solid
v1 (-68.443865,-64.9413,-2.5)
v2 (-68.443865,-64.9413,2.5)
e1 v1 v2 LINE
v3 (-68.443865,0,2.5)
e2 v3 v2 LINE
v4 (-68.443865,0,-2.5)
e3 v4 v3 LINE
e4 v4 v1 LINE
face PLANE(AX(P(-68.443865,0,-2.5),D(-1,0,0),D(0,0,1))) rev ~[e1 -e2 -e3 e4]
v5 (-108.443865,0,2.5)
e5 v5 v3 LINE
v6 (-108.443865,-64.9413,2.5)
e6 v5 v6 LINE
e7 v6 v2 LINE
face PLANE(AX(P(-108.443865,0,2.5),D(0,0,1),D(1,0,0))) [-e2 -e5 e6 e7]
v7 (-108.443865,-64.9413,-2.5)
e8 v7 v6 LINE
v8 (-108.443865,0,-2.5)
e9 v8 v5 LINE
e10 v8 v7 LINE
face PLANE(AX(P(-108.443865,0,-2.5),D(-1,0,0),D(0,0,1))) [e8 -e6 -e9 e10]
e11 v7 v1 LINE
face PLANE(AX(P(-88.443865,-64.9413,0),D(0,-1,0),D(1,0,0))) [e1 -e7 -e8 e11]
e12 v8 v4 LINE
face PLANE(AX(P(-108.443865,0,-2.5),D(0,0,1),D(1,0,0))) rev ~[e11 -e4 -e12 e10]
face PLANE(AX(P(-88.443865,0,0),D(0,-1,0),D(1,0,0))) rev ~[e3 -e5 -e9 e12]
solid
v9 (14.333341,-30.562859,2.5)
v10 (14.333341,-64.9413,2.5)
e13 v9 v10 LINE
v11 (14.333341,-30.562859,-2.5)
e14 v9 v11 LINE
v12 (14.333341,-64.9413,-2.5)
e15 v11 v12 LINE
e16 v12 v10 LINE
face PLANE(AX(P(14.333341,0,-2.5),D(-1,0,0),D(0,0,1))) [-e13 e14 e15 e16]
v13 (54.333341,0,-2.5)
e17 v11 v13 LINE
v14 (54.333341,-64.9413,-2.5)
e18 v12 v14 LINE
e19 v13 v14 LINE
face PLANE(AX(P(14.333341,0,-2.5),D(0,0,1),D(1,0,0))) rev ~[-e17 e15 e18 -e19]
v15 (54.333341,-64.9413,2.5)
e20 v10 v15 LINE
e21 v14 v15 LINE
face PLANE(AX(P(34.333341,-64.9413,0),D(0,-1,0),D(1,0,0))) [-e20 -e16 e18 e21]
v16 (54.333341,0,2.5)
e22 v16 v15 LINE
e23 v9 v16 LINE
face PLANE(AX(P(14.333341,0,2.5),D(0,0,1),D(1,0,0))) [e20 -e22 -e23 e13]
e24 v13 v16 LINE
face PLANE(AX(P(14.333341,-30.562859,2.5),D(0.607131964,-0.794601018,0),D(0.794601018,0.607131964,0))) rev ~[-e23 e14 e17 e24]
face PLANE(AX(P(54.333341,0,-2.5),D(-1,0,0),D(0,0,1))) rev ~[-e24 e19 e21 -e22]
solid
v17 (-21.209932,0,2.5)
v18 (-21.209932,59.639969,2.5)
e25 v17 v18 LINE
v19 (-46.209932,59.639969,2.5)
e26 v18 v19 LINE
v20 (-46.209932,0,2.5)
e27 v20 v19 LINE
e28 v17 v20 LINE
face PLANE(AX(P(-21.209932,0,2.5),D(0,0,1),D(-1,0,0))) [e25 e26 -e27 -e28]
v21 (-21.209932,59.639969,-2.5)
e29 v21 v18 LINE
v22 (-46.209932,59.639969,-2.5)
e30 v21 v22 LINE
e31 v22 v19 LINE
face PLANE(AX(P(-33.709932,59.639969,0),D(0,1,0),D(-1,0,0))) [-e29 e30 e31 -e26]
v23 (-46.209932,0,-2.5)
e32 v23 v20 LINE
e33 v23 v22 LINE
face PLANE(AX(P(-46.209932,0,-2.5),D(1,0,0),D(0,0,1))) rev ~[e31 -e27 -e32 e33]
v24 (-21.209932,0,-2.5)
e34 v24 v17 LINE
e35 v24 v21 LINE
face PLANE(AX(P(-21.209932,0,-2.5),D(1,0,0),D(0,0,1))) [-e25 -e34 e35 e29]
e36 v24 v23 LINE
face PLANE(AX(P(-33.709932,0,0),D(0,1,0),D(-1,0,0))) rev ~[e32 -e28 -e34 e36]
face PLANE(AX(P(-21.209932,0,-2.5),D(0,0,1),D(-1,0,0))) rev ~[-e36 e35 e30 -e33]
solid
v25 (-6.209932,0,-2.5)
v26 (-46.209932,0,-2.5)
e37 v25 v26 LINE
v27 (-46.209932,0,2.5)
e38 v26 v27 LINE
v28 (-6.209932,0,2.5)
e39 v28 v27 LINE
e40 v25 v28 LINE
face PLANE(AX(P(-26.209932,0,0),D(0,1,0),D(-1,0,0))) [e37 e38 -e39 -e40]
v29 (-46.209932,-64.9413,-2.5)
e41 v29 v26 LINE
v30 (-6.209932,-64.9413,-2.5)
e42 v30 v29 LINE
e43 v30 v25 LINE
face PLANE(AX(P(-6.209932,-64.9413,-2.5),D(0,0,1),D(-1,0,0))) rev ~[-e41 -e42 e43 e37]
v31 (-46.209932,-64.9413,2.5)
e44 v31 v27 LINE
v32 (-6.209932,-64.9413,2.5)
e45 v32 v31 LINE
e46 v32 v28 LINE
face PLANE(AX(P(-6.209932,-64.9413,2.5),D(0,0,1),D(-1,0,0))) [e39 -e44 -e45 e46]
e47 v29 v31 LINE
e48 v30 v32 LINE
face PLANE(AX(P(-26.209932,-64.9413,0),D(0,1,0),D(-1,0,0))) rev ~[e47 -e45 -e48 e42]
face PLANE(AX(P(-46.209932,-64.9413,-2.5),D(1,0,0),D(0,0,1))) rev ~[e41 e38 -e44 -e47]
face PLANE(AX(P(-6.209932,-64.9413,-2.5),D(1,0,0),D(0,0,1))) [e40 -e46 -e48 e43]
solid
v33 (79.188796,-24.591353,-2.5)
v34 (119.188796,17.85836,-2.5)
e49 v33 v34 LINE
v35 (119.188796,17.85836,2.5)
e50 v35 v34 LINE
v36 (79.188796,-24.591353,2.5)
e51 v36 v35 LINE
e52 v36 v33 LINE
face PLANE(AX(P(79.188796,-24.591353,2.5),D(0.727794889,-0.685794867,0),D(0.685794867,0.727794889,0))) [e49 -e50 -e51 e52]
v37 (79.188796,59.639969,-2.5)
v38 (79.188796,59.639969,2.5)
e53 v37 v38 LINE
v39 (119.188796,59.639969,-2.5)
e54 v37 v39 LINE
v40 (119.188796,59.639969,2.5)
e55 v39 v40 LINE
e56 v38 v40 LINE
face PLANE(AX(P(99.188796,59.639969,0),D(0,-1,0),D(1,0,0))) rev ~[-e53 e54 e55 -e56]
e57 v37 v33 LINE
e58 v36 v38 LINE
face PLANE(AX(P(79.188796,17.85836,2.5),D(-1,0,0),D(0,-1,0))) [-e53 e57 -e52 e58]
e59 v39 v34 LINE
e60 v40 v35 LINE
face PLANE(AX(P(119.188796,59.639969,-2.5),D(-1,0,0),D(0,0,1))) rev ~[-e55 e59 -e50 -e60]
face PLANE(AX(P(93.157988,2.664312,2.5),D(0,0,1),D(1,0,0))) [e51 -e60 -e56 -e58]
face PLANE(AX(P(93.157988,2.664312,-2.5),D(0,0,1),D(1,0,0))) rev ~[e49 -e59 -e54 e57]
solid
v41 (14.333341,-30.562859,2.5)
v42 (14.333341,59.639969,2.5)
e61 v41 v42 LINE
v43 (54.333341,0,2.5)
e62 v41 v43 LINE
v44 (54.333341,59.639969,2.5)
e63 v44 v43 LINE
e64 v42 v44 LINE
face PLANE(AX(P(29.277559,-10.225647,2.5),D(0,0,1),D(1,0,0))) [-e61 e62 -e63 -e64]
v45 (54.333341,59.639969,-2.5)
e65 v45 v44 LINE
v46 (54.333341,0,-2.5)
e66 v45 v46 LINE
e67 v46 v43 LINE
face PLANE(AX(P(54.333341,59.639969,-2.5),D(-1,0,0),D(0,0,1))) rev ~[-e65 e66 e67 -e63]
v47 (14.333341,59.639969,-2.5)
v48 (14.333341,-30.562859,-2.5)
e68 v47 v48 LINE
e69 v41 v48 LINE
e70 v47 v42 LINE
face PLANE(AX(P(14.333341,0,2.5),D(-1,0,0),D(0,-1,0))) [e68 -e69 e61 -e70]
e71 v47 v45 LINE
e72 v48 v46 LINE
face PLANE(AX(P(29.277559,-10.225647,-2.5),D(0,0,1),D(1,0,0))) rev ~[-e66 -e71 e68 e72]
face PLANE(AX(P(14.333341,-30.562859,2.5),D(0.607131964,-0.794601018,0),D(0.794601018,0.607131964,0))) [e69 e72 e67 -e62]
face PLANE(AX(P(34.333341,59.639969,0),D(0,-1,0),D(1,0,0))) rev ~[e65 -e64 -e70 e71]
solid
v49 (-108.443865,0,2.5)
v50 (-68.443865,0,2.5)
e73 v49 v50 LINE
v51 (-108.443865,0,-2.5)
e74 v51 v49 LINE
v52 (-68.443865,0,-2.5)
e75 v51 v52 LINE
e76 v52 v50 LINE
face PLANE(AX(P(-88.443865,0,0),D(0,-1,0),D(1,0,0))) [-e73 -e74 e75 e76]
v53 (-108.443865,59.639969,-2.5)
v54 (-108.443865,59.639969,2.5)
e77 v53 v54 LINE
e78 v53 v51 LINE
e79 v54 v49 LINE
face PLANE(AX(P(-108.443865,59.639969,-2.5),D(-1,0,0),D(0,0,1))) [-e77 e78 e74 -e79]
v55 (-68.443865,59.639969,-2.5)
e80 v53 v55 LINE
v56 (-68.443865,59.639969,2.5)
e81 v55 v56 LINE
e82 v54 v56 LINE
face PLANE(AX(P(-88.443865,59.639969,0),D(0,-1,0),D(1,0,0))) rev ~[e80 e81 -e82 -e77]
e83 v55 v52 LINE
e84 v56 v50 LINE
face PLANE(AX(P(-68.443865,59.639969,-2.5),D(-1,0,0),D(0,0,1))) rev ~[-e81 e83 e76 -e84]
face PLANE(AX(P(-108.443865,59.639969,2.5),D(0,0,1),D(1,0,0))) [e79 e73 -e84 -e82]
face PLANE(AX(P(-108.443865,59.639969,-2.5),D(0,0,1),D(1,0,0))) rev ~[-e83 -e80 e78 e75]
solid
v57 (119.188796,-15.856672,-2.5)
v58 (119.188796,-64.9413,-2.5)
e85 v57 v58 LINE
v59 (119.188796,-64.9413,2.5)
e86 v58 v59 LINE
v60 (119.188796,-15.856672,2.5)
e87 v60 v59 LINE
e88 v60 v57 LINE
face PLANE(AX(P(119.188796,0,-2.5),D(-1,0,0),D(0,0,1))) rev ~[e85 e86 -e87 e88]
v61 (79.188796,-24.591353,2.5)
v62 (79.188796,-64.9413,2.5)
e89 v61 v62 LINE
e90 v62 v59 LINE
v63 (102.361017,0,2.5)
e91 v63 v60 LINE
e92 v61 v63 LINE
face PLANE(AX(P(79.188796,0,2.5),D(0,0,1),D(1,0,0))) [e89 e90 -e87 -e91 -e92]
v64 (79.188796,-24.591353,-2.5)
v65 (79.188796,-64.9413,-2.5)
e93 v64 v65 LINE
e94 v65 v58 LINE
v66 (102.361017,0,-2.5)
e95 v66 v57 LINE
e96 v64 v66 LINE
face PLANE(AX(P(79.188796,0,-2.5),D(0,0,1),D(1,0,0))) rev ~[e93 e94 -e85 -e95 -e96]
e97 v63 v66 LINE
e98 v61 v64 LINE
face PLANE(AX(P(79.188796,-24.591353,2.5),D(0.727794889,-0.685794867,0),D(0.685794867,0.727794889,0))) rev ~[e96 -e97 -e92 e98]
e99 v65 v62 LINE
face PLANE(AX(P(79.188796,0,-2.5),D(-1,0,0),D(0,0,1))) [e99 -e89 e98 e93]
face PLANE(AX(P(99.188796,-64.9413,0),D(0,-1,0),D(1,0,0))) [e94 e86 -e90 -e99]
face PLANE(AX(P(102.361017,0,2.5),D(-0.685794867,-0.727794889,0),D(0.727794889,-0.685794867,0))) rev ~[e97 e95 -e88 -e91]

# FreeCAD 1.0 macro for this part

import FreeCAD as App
import Part
import Sketcher
from FreeCAD import Vector
Q = App.Units.Quantity

doc = App.newDocument("Part")
body = doc.addObject("PartDesign::Body", "Body")

# Sketch on XZ plane
sketch1 = body.newObject("Sketcher::SketchObject", "Sketch")
sketch1.AttachmentSupport = (doc.getObject("XZ_Plane"), [""])
sketch1.MapMode = "FlatFace"
sketch1.AttachmentOffset = App.Placement(Vector(0, 0, -59.639969), App.Rotation())
sketch1.addGeometry([
    Part.LineSegment(Vector(-108, 2, 0), Vector(-108, -2, 0)),
    Part.LineSegment(Vector(-108, -2, 0), Vector(-68, -2, 0)),
    Part.LineSegment(Vector(-68, -2, 0), Vector(-68, 2, 0)),
    Part.LineSegment(Vector(-68, 2, 0), Vector(-108, 2, 0)),
], False)
sketch1.addConstraint([
    Sketcher.Constraint("Coincident", 0, 2, 1, 1),
    Sketcher.Constraint("Coincident", 1, 2, 2, 1),
    Sketcher.Constraint("Coincident", 2, 2, 3, 1),
    Sketcher.Constraint("Coincident", 3, 2, 0, 1),
    Sketcher.Constraint("Vertical", 0),
    Sketcher.Constraint("Horizontal", 1),
    Sketcher.Constraint("Vertical", 2),
    Sketcher.Constraint("Horizontal", 3),
    Sketcher.Constraint("DistanceX", 1, 1, 1, 2, Q("40 mm")),
    Sketcher.Constraint("DistanceY", 0, 2, 0, 1, Q("5 mm")),
    Sketcher.Constraint("DistanceY", 0, 2, -1, 1, Q("2.5 mm")),
    Sketcher.Constraint("DistanceX", 0, 2, -1, 1, Q("108.443865 mm")),
])
pad1 = body.newObject("PartDesign::Pad", "Pad")
pad1.Profile = sketch1
pad1.Length = 59.639969
body2 = doc.addObject("PartDesign::Body", "Body001")

# Sketch on XZ plane
sketch2 = body2.newObject("Sketcher::SketchObject", "Sketch001")
sketch2.AttachmentSupport = (doc.getObject("XZ_Plane001"), [""])
sketch2.MapMode = "FlatFace"
sketch2.addGeometry([
    Part.LineSegment(Vector(-108, 2, 0), Vector(-108, -2, 0)),
    Part.LineSegment(Vector(-108, -2, 0), Vector(-68, -2, 0)),
    Part.LineSegment(Vector(-68, -2, 0), Vector(-68, 2, 0)),
    Part.LineSegment(Vector(-68, 2, 0), Vector(-108, 2, 0)),
], False)
sketch2.addConstraint([
    Sketcher.Constraint("Coincident", 0, 2, 1, 1),
    Sketcher.Constraint("Coincident", 1, 2, 2, 1),
    Sketcher.Constraint("Coincident", 2, 2, 3, 1),
    Sketcher.Constraint("Coincident", 3, 2, 0, 1),
    Sketcher.Constraint("Vertical", 0),
    Sketcher.Constraint("Horizontal", 1),
    Sketcher.Constraint("Vertical", 2),
    Sketcher.Constraint("Horizontal", 3),
    Sketcher.Constraint("DistanceX", 1, 1, 1, 2, Q("40 mm")),
    Sketcher.Constraint("DistanceY", 0, 2, 0, 1, Q("5 mm")),
    Sketcher.Constraint("DistanceY", 0, 2, -1, 1, Q("2.5 mm")),
    Sketcher.Constraint("DistanceX", 0, 2, -1, 1, Q("108.443865 mm")),
])
pad2 = body2.newObject("PartDesign::Pad", "Pad001")
pad2.Profile = sketch2
pad2.Length = 64.9413
body3 = doc.addObject("PartDesign::Body", "Body002")

# Sketch on XZ plane
sketch3 = body3.newObject("Sketcher::SketchObject", "Sketch002")
sketch3.AttachmentSupport = (doc.getObject("XZ_Plane002"), [""])
sketch3.MapMode = "FlatFace"
sketch3.AttachmentOffset = App.Placement(Vector(0, 0, 64.9413), App.Rotation())
sketch3.addGeometry([
    Part.LineSegment(Vector(-6, 2, 0), Vector(-6, -2, 0)),
    Part.LineSegment(Vector(-6, -2, 0), Vector(-46, -2, 0)),
    Part.LineSegment(Vector(-46, -2, 0), Vector(-46, 2, 0)),
    Part.LineSegment(Vector(-46, 2, 0), Vector(-6, 2, 0)),
], False)
sketch3.addConstraint([
    Sketcher.Constraint("Coincident", 0, 2, 1, 1),
    Sketcher.Constraint("Coincident", 1, 2, 2, 1),
    Sketcher.Constraint("Coincident", 2, 2, 3, 1),
    Sketcher.Constraint("Coincident", 3, 2, 0, 1),
    Sketcher.Constraint("Vertical", 0),
    Sketcher.Constraint("Horizontal", 1),
    Sketcher.Constraint("Vertical", 2),
    Sketcher.Constraint("Horizontal", 3),
    Sketcher.Constraint("DistanceX", 1, 2, 1, 1, Q("40 mm")),
    Sketcher.Constraint("DistanceY", 0, 2, 0, 1, Q("5 mm")),
    Sketcher.Constraint("DistanceY", 0, 2, -1, 1, Q("2.5 mm")),
    Sketcher.Constraint("DistanceX", 0, 2, -1, 1, Q("6.209932 mm")),
])
pad3 = body3.newObject("PartDesign::Pad", "Pad002")
pad3.Profile = sketch3
pad3.Length = 64.9413
pad3.Reversed = True
body4 = doc.addObject("PartDesign::Body", "Body003")

# Sketch on XZ plane
sketch4 = body4.newObject("Sketcher::SketchObject", "Sketch003")
sketch4.AttachmentSupport = (doc.getObject("XZ_Plane003"), [""])
sketch4.MapMode = "FlatFace"
sketch4.addGeometry([
    Part.LineSegment(Vector(-21, 2, 0), Vector(-21, -2, 0)),
    Part.LineSegment(Vector(-21, -2, 0), Vector(-46, -2, 0)),
    Part.LineSegment(Vector(-46, -2, 0), Vector(-46, 2, 0)),
    Part.LineSegment(Vector(-46, 2, 0), Vector(-21, 2, 0)),
], False)
sketch4.addConstraint([
    Sketcher.Constraint("Coincident", 0, 2, 1, 1),
    Sketcher.Constraint("Coincident", 1, 2, 2, 1),
    Sketcher.Constraint("Coincident", 2, 2, 3, 1),
    Sketcher.Constraint("Coincident", 3, 2, 0, 1),
    Sketcher.Constraint("Vertical", 0),
    Sketcher.Constraint("Horizontal", 1),
    Sketcher.Constraint("Vertical", 2),
    Sketcher.Constraint("Horizontal", 3),
    Sketcher.Constraint("DistanceX", 1, 2, 1, 1, Q("25 mm")),
    Sketcher.Constraint("DistanceY", 0, 2, 0, 1, Q("5 mm")),
    Sketcher.Constraint("DistanceY", 0, 2, -1, 1, Q("2.5 mm")),
    Sketcher.Constraint("DistanceX", 0, 2, -1, 1, Q("21.209932 mm")),
])
pad4 = body4.newObject("PartDesign::Pad", "Pad003")
pad4.Profile = sketch4
pad4.Length = 59.639969
pad4.Reversed = True
body5 = doc.addObject("PartDesign::Body", "Body004")

# Sketch on XZ plane
sketch5 = body5.newObject("Sketcher::SketchObject", "Sketch004")
sketch5.AttachmentSupport = (doc.getObject("XZ_Plane004"), [""])
sketch5.MapMode = "FlatFace"
sketch5.AttachmentOffset = App.Placement(Vector(0, 0, -59.639969), App.Rotation())
sketch5.addGeometry([
    Part.LineSegment(Vector(14, 2, 0), Vector(14, -2, 0)),
    Part.LineSegment(Vector(14, -2, 0), Vector(54, -2, 0)),
    Part.LineSegment(Vector(54, -2, 0), Vector(54, 2, 0)),
    Part.LineSegment(Vector(54, 2, 0), Vector(14, 2, 0)),
], False)
sketch5.addConstraint([
    Sketcher.Constraint("Coincident", 0, 2, 1, 1),
    Sketcher.Constraint("Coincident", 1, 2, 2, 1),
    Sketcher.Constraint("Coincident", 2, 2, 3, 1),
    Sketcher.Constraint("Coincident", 3, 2, 0, 1),
    Sketcher.Constraint("Vertical", 0),
    Sketcher.Constraint("Horizontal", 1),
    Sketcher.Constraint("Vertical", 2),
    Sketcher.Constraint("Horizontal", 3),
    Sketcher.Constraint("DistanceX", 1, 1, 1, 2, Q("40 mm")),
    Sketcher.Constraint("DistanceY", 0, 2, 0, 1, Q("5 mm")),
    Sketcher.Constraint("DistanceY", 0, 2, -1, 1, Q("2.5 mm")),
    Sketcher.Constraint("DistanceX", -1, 1, 0, 2, Q("14.333341 mm")),
])
pad5 = body5.newObject("PartDesign::Pad", "Pad004")
pad5.Profile = sketch5
pad5.Length = 59.639969

# Sketch on XY plane
sketch6 = body5.newObject("Sketcher::SketchObject", "Sketch005")
sketch6.AttachmentSupport = (doc.getObject("XY_Plane004"), [""])
sketch6.MapMode = "FlatFace"
sketch6.AttachmentOffset = App.Placement(Vector(0, 0, 2.5), App.Rotation())
sketch6.addGeometry([
    Part.LineSegment(Vector(14, 0, 0), Vector(14, -31, 0)),
    Part.LineSegment(Vector(14, -31, 0), Vector(54, 0, 0)),
    Part.LineSegment(Vector(54, 0, 0), Vector(14, 0, 0)),
], False)
sketch6.addConstraint([
    Sketcher.Constraint("Coincident", 0, 2, 1, 1),
    Sketcher.Constraint("Coincident", 1, 2, 2, 1),
    Sketcher.Constraint("Coincident", 2, 2, 0, 1),
    Sketcher.Constraint("Vertical", 0),
    Sketcher.Constraint("Horizontal", 2),
    Sketcher.Constraint("PointOnObject", 1, 2, -1),
    Sketcher.Constraint("DistanceX", 2, 2, 2, 1, Q("40 mm")),
    Sketcher.Constraint("DistanceY", 0, 2, 0, 1, Q("30.562859 mm")),
    Sketcher.Constraint("DistanceX", -1, 1, 0, 2, Q("14.333341 mm")),
])
pad6 = body5.newObject("PartDesign::Pad", "Pad005")
pad6.Profile = sketch6
pad6.Length = 5
pad6.Reversed = True
body6 = doc.addObject("PartDesign::Body", "Body005")

# Sketch on XZ plane
sketch7 = body6.newObject("Sketcher::SketchObject", "Sketch006")
sketch7.AttachmentSupport = (doc.getObject("XZ_Plane005"), [""])
sketch7.MapMode = "FlatFace"
sketch7.addGeometry([
    Part.LineSegment(Vector(14, 2, 0), Vector(14, -2, 0)),
    Part.LineSegment(Vector(14, -2, 0), Vector(54, -2, 0)),
    Part.LineSegment(Vector(54, -2, 0), Vector(54, 2, 0)),
    Part.LineSegment(Vector(54, 2, 0), Vector(14, 2, 0)),
], False)
sketch7.addConstraint([
    Sketcher.Constraint("Coincident", 0, 2, 1, 1),
    Sketcher.Constraint("Coincident", 1, 2, 2, 1),
    Sketcher.Constraint("Coincident", 2, 2, 3, 1),
    Sketcher.Constraint("Coincident", 3, 2, 0, 1),
    Sketcher.Constraint("Vertical", 0),
    Sketcher.Constraint("Horizontal", 1),
    Sketcher.Constraint("Vertical", 2),
    Sketcher.Constraint("Horizontal", 3),
    Sketcher.Constraint("DistanceX", 1, 1, 1, 2, Q("40 mm")),
    Sketcher.Constraint("DistanceY", 0, 2, 0, 1, Q("5 mm")),
    Sketcher.Constraint("DistanceY", 0, 2, -1, 1, Q("2.5 mm")),
    Sketcher.Constraint("DistanceX", -1, 1, 0, 2, Q("14.333341 mm")),
])
pad7 = body6.newObject("PartDesign::Pad", "Pad006")
pad7.Profile = sketch7
pad7.Length = 64.9413

# Sketch on XY plane
sketch8 = body6.newObject("Sketcher::SketchObject", "Sketch007")
sketch8.AttachmentSupport = (doc.getObject("XY_Plane005"), [""])
sketch8.MapMode = "FlatFace"
sketch8.AttachmentOffset = App.Placement(Vector(0, 0, 2.5), App.Rotation())
sketch8.addGeometry([
    Part.LineSegment(Vector(14, 0, 0), Vector(14, -31, 0)),
    Part.LineSegment(Vector(14, -31, 0), Vector(54, 0, 0)),
    Part.LineSegment(Vector(54, 0, 0), Vector(14, 0, 0)),
], False)
sketch8.addConstraint([
    Sketcher.Constraint("Coincident", 0, 2, 1, 1),
    Sketcher.Constraint("Coincident", 1, 2, 2, 1),
    Sketcher.Constraint("Coincident", 2, 2, 0, 1),
    Sketcher.Constraint("Vertical", 0),
    Sketcher.Constraint("Horizontal", 2),
    Sketcher.Constraint("PointOnObject", 1, 2, -1),
    Sketcher.Constraint("DistanceX", 2, 2, 2, 1, Q("40 mm")),
    Sketcher.Constraint("DistanceY", 0, 2, 0, 1, Q("30.562859 mm")),
    Sketcher.Constraint("DistanceX", -1, 1, 0, 2, Q("14.333341 mm")),
])
pocket1 = body6.newObject("PartDesign::Pocket", "Pocket")
pocket1.Profile = sketch8
pocket1.Type = "ThroughAll"
body7 = doc.addObject("PartDesign::Body", "Body006")

# Sketch on XZ plane
sketch9 = body7.newObject("Sketcher::SketchObject", "Sketch008")
sketch9.AttachmentSupport = (doc.getObject("XZ_Plane006"), [""])
sketch9.MapMode = "FlatFace"
sketch9.AttachmentOffset = App.Placement(Vector(0, 0, -59.639969), App.Rotation())
sketch9.addGeometry([
    Part.LineSegment(Vector(79, 2, 0), Vector(79, -2, 0)),
    Part.LineSegment(Vector(79, -2, 0), Vector(119, -2, 0)),
    Part.LineSegment(Vector(119, -2, 0), Vector(119, 2, 0)),
    Part.LineSegment(Vector(119, 2, 0), Vector(79, 2, 0)),
], False)
sketch9.addConstraint([
    Sketcher.Constraint("Coincident", 0, 2, 1, 1),
    Sketcher.Constraint("Coincident", 1, 2, 2, 1),
    Sketcher.Constraint("Coincident", 2, 2, 3, 1),
    Sketcher.Constraint("Coincident", 3, 2, 0, 1),
    Sketcher.Constraint("Vertical", 0),
    Sketcher.Constraint("Horizontal", 1),
    Sketcher.Constraint("Vertical", 2),
    Sketcher.Constraint("Horizontal", 3),
    Sketcher.Constraint("DistanceX", 1, 1, 1, 2, Q("40 mm")),
    Sketcher.Constraint("DistanceY", 0, 2, 0, 1, Q("5 mm")),
    Sketcher.Constraint("DistanceY", 0, 2, -1, 1, Q("2.5 mm")),
    Sketcher.Constraint("DistanceX", -1, 1, 0, 2, Q("79.188796 mm")),
])
pad8 = body7.newObject("PartDesign::Pad", "Pad007")
pad8.Profile = sketch9
pad8.Length = 59.639969
body8 = doc.addObject("PartDesign::Body", "Body007")

# Sketch on XZ plane
sketch10 = body8.newObject("Sketcher::SketchObject", "Sketch009")
sketch10.AttachmentSupport = (doc.getObject("XZ_Plane007"), [""])
sketch10.MapMode = "FlatFace"
sketch10.addGeometry([
    Part.LineSegment(Vector(79, 2, 0), Vector(79, -2, 0)),
    Part.LineSegment(Vector(79, -2, 0), Vector(119, -2, 0)),
    Part.LineSegment(Vector(119, -2, 0), Vector(119, 2, 0)),
    Part.LineSegment(Vector(119, 2, 0), Vector(79, 2, 0)),
], False)
sketch10.addConstraint([
    Sketcher.Constraint("Coincident", 0, 2, 1, 1),
    Sketcher.Constraint("Coincident", 1, 2, 2, 1),
    Sketcher.Constraint("Coincident", 2, 2, 3, 1),
    Sketcher.Constraint("Coincident", 3, 2, 0, 1),
    Sketcher.Constraint("Vertical", 0),
    Sketcher.Constraint("Horizontal", 1),
    Sketcher.Constraint("Vertical", 2),
    Sketcher.Constraint("Horizontal", 3),
    Sketcher.Constraint("DistanceX", 1, 1, 1, 2, Q("40 mm")),
    Sketcher.Constraint("DistanceY", 0, 2, 0, 1, Q("5 mm")),
    Sketcher.Constraint("DistanceY", 0, 2, -1, 1, Q("2.5 mm")),
    Sketcher.Constraint("DistanceX", -1, 1, 0, 2, Q("79.188796 mm")),
])
pad9 = body8.newObject("PartDesign::Pad", "Pad008")
pad9.Profile = sketch10
pad9.Length = 64.9413
body9 = doc.addObject("PartDesign::Body", "Body008")

# Sketch on XY plane
sketch11 = body9.newObject("Sketcher::SketchObject", "Sketch010")
sketch11.AttachmentSupport = (doc.getObject("XY_Plane008"), [""])
sketch11.MapMode = "FlatFace"
sketch11.AttachmentOffset = App.Placement(Vector(0, 0, 2.5), App.Rotation())
sketch11.addGeometry([
    Part.LineSegment(Vector(79, 18, 0), Vector(79, -25, 0)),  # 0
    Part.LineSegment(Vector(79, -25, 0), Vector(102, 0, 0)),  # 1
    Part.LineSegment(Vector(102, 0, 0), Vector(119, -16, 0)),  # 2
    Part.LineSegment(Vector(119, -16, 0), Vector(119, 18, 0)),  # 3
    Part.LineSegment(Vector(119, 18, 0), Vector(79, 18, 0)),  # 4
], False)
sketch11.addConstraint([
    Sketcher.Constraint("Coincident", 0, 2, 1, 1),
    Sketcher.Constraint("Coincident", 1, 2, 2, 1),
    Sketcher.Constraint("Coincident", 2, 2, 3, 1),
    Sketcher.Constraint("Coincident", 3, 2, 4, 1),
    Sketcher.Constraint("Coincident", 4, 2, 0, 1),
    Sketcher.Constraint("Vertical", 0),
    Sketcher.Constraint("Vertical", 3),
    Sketcher.Constraint("Horizontal", 4),
    Sketcher.Constraint("PointOnObject", 1, 2, -1),
    Sketcher.Constraint("Perpendicular", 1, 2),
    Sketcher.Constraint("DistanceX", 4, 2, 4, 1, Q("40 mm")),
    Sketcher.Constraint("Distance", 1, Q("33.788851 mm")),
    Sketcher.Constraint("DistanceY", 0, 2, 0, 1, Q("42.449713 mm")),
    Sketcher.Constraint("DistanceY", 3, 1, 3, 2, Q("33.715032 mm")),
    Sketcher.Constraint("DistanceX", -1, 1, 0, 2, Q("79.188796 mm")),
])
pad10 = body9.newObject("PartDesign::Pad", "Pad009")
pad10.Profile = sketch11
pad10.Length = 6
pad10.Reversed = True
doc.recompute()

body10 = doc.addObject("PartDesign::Body", "Body009")
body10.BaseFeature = body9
boolean = body7.newObject("PartDesign::Boolean", "Boolean")
boolean.Type = "Cut"
boolean.addObjects([body10])
doc.recompute()

# Sketch on XY plane
sketch12 = body7.newObject("Sketcher::SketchObject", "Sketch011")
sketch12.AttachmentSupport = (doc.getObject("XY_Plane006"), [""])
sketch12.MapMode = "FlatFace"
sketch12.AttachmentOffset = App.Placement(Vector(0, 0, 2.5), App.Rotation())
sketch12.addGeometry([
    Part.LineSegment(Vector(79, 18, 0), Vector(79, -25, 0)),
    Part.LineSegment(Vector(79, -25, 0), Vector(119, 18, 0)),
    Part.LineSegment(Vector(119, 18, 0), Vector(79, 18, 0)),
], False)
sketch12.addConstraint([
    Sketcher.Constraint("Coincident", 0, 2, 1, 1),
    Sketcher.Constraint("Coincident", 1, 2, 2, 1),
    Sketcher.Constraint("Coincident", 2, 2, 0, 1),
    Sketcher.Constraint("Vertical", 0),
    Sketcher.Constraint("Horizontal", 2),
    Sketcher.Constraint("DistanceX", 2, 2, 2, 1, Q("40 mm")),
    Sketcher.Constraint("Distance", 1, Q("58.326479 mm")),
    Sketcher.Constraint("DistanceY", -1, 1, 1, 2, Q("17.85836 mm")),
    Sketcher.Constraint("DistanceX", -1, 1, 0, 2, Q("79.188796 mm")),
])
pad11 = body7.newObject("PartDesign::Pad", "Pad010")
pad11.Profile = sketch12
pad11.Length = 5
pad11.Reversed = True
doc.recompute()

boolean2 = body8.newObject("PartDesign::Boolean", "Boolean001")
boolean2.Type = "Cut"
boolean2.addObjects([body9])

doc.recompute()
